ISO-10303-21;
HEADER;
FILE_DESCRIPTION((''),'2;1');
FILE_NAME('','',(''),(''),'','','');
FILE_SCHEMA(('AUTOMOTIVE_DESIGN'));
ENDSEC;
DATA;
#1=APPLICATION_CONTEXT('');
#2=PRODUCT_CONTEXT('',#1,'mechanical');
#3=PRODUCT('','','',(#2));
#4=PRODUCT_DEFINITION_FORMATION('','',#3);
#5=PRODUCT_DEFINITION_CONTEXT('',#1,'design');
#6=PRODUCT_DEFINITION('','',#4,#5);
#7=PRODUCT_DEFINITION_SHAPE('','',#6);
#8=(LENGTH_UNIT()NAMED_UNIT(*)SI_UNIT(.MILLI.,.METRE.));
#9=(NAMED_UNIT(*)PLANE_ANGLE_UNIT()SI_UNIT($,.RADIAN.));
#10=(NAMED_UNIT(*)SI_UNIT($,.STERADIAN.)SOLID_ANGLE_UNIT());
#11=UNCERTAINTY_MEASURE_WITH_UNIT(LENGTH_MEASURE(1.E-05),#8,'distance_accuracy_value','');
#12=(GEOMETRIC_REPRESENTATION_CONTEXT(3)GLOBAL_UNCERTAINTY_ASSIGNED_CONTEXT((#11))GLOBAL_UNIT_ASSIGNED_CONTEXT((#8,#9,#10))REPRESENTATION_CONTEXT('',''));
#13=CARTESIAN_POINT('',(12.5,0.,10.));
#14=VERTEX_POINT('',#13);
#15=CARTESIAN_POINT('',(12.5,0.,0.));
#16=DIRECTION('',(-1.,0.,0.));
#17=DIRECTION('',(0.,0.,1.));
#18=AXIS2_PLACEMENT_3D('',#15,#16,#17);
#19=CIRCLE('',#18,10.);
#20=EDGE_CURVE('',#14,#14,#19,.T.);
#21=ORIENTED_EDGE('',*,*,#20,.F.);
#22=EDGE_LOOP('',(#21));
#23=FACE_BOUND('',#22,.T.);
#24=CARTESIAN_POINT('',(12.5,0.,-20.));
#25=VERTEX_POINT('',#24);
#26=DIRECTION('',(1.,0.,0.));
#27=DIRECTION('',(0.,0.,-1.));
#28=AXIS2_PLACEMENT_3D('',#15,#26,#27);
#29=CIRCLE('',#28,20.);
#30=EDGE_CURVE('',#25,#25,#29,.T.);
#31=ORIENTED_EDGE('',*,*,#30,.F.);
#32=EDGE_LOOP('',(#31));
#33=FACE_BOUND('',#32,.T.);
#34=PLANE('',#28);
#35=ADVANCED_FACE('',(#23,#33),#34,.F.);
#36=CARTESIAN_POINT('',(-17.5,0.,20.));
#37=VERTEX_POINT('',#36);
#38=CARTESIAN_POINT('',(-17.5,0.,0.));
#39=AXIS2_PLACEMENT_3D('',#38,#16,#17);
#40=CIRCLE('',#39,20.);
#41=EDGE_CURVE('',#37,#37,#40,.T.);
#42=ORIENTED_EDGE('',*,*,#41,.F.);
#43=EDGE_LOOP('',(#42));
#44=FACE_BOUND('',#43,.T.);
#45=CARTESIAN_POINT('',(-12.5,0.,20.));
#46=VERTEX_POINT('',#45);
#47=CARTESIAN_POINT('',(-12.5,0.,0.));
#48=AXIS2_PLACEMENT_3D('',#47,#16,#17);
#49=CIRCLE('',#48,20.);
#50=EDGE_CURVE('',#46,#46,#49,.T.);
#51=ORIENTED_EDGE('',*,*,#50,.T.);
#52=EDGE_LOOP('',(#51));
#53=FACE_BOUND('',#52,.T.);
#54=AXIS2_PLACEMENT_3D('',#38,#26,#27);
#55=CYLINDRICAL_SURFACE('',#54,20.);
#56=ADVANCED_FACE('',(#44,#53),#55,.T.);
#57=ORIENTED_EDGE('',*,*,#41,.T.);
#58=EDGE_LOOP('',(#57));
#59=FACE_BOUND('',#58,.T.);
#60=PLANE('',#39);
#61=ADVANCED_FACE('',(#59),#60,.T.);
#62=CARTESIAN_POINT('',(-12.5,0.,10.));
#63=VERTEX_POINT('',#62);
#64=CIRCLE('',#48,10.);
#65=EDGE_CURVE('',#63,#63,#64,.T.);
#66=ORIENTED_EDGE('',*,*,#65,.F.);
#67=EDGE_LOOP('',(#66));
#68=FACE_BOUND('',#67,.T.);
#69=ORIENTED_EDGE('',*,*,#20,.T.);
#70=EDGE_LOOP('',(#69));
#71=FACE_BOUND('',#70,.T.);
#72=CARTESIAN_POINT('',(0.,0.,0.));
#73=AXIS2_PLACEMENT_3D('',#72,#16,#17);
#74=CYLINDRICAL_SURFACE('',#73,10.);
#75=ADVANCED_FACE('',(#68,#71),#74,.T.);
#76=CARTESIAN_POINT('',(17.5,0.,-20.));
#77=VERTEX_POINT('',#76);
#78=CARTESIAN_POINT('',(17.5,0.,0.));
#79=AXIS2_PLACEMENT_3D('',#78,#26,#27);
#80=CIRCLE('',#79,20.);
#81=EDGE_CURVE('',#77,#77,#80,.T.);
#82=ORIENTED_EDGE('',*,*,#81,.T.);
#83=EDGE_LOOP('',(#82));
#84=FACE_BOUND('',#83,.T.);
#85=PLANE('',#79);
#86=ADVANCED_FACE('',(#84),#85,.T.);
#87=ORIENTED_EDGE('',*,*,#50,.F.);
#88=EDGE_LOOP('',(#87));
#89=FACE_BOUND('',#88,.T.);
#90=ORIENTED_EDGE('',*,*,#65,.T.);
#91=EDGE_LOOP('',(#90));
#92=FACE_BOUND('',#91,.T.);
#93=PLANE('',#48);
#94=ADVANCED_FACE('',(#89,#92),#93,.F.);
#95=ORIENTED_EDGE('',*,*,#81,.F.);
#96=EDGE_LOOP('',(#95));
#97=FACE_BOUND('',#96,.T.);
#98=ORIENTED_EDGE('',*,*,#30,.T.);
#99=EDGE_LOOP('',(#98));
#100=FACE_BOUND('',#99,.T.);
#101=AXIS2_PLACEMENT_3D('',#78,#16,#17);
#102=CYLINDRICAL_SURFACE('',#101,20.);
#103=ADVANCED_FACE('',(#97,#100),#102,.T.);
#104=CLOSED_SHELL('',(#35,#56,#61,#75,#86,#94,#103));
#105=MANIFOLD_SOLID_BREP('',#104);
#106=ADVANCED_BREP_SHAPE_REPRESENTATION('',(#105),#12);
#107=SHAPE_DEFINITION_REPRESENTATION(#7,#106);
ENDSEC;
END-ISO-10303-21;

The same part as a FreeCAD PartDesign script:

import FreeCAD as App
import Part
import Sketcher

V = App.Vector


def add_polygon(sketch, points):
    """Adds a closed chain of lines whose ends are joined by coincident constraints."""
    first, n = sketch.GeometryCount, len(points)
    for a, b in zip(points, points[1:] + points[:1]):
        sketch.addGeometry(Part.LineSegment(App.Vector(*a, 0), App.Vector(*b, 0)), False)
    for i in range(n):
        sketch.addConstraint(Sketcher.Constraint("Coincident", first + i, 2, first + (i + 1) % n, 1))

doc = App.newDocument("Part")
body = doc.addObject("PartDesign::Body", "Body")

# Sketch on XY plane
sketch1 = doc.addObject("Sketcher::SketchObject", "Sketch")
body.addObject(sketch1)
sketch1.AttachmentSupport = (doc.XY_Plane, [""])
sketch1.MapMode = "FlatFace"
add_polygon(sketch1, [(-12, 10), (-12, 0), (12, 0), (12, 10)])  # lines 0-3
sketch1.addConstraint([
    Sketcher.Constraint("Vertical", 0),
    Sketcher.Constraint("Horizontal", 1),
    Sketcher.Constraint("Vertical", 2),
    Sketcher.Constraint("Horizontal", 3),
    Sketcher.Constraint("Symmetric", 0, 2, 1, 2, -1, 1),
    Sketcher.Constraint("DistanceX", 1, 1, 1, 2, 25.0),
    Sketcher.Constraint("DistanceY", 0, 2, 0, 1, 10.0),
])
revolution = doc.addObject("PartDesign::Revolution", "Revolution")
body.addObject(revolution)
revolution.Profile = sketch1
revolution.ReferenceAxis = (sketch1, ["H_Axis"])
revolution.Angle = 360

# Sketch on YZ plane
sketch2 = doc.addObject("Sketcher::SketchObject", "Sketch001")
body.addObject(sketch2)
sketch2.AttachmentSupport = (doc.YZ_Plane, [""])
sketch2.MapMode = "FlatFace"
sketch2.AttachmentOffset = App.Placement(V(0, 0, -12.5), App.Rotation())
sketch2.addGeometry(Part.Circle(V(0, 0, 0), V(0, 0, 1), 20), False)
sketch2.addConstraint([
    Sketcher.Constraint("Coincident", 0, 3, -1, 1),
    Sketcher.Constraint("Diameter", 0, 40.0),
])
pad1 = doc.addObject("PartDesign::Pad", "Pad")
body.addObject(pad1)
pad1.Profile = sketch2
pad1.Length = 5
pad1.Reversed = True

# Sketch on YZ plane
sketch3 = doc.addObject("Sketcher::SketchObject", "Sketch002")
body.addObject(sketch3)
sketch3.AttachmentSupport = (doc.YZ_Plane, [""])
sketch3.MapMode = "FlatFace"
sketch3.AttachmentOffset = App.Placement(V(0, 0, 17.5), App.Rotation())
sketch3.addGeometry(Part.Circle(V(0, 0, 0), V(0, 0, 1), 20), False)
sketch3.addConstraint([
    Sketcher.Constraint("Coincident", 0, 3, -1, 1),
    Sketcher.Constraint("Diameter", 0, 40.0),
])
pad2 = doc.addObject("PartDesign::Pad", "Pad001")
body.addObject(pad2)
pad2.Profile = sketch3
pad2.Length = 5
pad2.Reversed = True

doc.recompute()
